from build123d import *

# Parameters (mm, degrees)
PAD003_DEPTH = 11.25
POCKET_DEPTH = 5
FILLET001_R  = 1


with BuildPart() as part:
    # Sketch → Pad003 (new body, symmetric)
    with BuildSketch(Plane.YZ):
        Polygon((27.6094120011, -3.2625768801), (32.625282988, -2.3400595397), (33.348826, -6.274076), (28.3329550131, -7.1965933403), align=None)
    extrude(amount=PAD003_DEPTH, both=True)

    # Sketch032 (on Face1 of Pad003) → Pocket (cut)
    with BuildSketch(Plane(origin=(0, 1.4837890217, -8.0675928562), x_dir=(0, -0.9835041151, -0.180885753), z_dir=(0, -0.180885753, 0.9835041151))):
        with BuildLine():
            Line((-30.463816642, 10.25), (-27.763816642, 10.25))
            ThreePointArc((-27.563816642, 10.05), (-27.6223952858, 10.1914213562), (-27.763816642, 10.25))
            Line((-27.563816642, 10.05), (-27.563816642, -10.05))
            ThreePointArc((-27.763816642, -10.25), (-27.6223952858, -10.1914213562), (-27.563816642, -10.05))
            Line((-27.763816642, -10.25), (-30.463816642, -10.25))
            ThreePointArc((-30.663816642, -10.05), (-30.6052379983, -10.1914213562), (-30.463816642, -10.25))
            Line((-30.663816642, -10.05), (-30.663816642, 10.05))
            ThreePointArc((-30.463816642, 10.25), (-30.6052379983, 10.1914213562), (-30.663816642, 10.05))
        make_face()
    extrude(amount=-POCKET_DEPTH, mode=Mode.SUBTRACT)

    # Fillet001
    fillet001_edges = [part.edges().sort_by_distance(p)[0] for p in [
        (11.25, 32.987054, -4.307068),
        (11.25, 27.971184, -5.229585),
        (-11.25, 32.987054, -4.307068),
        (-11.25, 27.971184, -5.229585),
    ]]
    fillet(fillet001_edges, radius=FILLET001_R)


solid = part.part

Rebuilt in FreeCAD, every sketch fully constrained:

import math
import FreeCAD as App
import Part
import Sketcher


def edges_at(feature, points):
    """Names of the edges that pass closest to the given points."""
    edges = feature.Shape.Edges
    near = lambda p: min(range(len(edges)), key=lambda i: edges[i].distToShape(Part.Vertex(*p))[0])
    return sorted({f"Edge{near(p) + 1}" for p in points})


def add_polygon(sketch, points):
    """Adds a closed chain of lines whose ends are joined by coincident constraints."""
    first, n = sketch.GeometryCount, len(points)
    for a, b in zip(points, points[1:] + points[:1]):
        sketch.addGeometry(Part.LineSegment(App.Vector(*a, 0), App.Vector(*b, 0)), False)
    for i in range(n):
        sketch.addConstraint(Sketcher.Constraint("Coincident", first + i, 2, first + (i + 1) % n, 1))

doc = App.newDocument("Part")
body = doc.addObject("PartDesign::Body", "Body")

sketch1 = body.newObject("Sketcher::SketchObject", "Sketch")
sketch1.AttachmentSupport = (doc.getObject("YZ_Plane"), [""])
sketch1.MapMode = "FlatFace"
add_polygon(sketch1, [(32.6, -2.3), (27.6, -3.3), (28.3, -7.2), (33.3, -6.3)])
sketch1.addConstraint(Sketcher.Constraint("Perpendicular", 0, 1))
sketch1.addConstraint(Sketcher.Constraint("Perpendicular", 1, 2))
sketch1.addConstraint(Sketcher.Constraint("Perpendicular", 2, 3))
sketch1.addConstraint(Sketcher.Constraint("Distance", 1, 4.0))
sketch1.addConstraint(Sketcher.Constraint("Distance", 0, 5.1))
sketch1.addConstraint(Sketcher.Constraint("DistanceY", 2, 2, 0, 2, 3.011499))
sketch1.addConstraint(Sketcher.Constraint("DistanceY", 3, 2, -1, 1, 2.34006))
sketch1.addConstraint(Sketcher.Constraint("DistanceX", -1, 1, 0, 2, 27.609412))
pad1 = body.newObject("PartDesign::Pad", "Pad")
pad1.Profile = sketch1
pad1.Length = 22.5
pad1.Midplane = True

sketch2 = body.newObject("Sketcher::SketchObject", "Sketch001")
sketch2.Placement = App.Placement(App.Vector(0, 1.483789, -8.067593), App.Rotation(App.Vector(0, -0.983504115, -0.180885753), App.Vector(1, 0, 0), App.Vector(0, -0.180885753, 0.983504115), "ZXY"))
sketch2.addGeometry(Part.LineSegment(App.Vector(-27.76, 10.25, 0), App.Vector(-30.46, 10.25, 0)), False)
sketch2.addGeometry(Part.ArcOfCircle(Part.Circle(App.Vector(-30.46, 10.05, 0), App.Vector(0, 0, 1), 0.2), math.radians(90), math.radians(180)), False)
sketch2.addGeometry(Part.LineSegment(App.Vector(-30.66, 10.05, 0), App.Vector(-30.66, -10.05, 0)), False)
sketch2.addGeometry(Part.ArcOfCircle(Part.Circle(App.Vector(-30.46, -10.05, 0), App.Vector(0, 0, 1), 0.2), math.radians(180), math.radians(270)), False)
sketch2.addGeometry(Part.LineSegment(App.Vector(-30.46, -10.25, 0), App.Vector(-27.76, -10.25, 0)), False)
sketch2.addGeometry(Part.ArcOfCircle(Part.Circle(App.Vector(-27.76, -10.05, 0), App.Vector(0, 0, 1), 0.2), math.radians(-90), math.radians(0)), False)
sketch2.addGeometry(Part.LineSegment(App.Vector(-27.56, -10.05, 0), App.Vector(-27.56, 10.05, 0)), False)
sketch2.addGeometry(Part.ArcOfCircle(Part.Circle(App.Vector(-27.76, 10.05, 0), App.Vector(0, 0, 1), 0.2), math.radians(0), math.radians(90)), False)
sketch2.addConstraint(Sketcher.Constraint("Tangent", 0, 2, 1, 1))
sketch2.addConstraint(Sketcher.Constraint("Tangent", 1, 2, 2, 1))
sketch2.addConstraint(Sketcher.Constraint("Tangent", 2, 2, 3, 1))
sketch2.addConstraint(Sketcher.Constraint("Tangent", 3, 2, 4, 1))
sketch2.addConstraint(Sketcher.Constraint("Tangent", 4, 2, 5, 1))
sketch2.addConstraint(Sketcher.Constraint("Tangent", 5, 2, 6, 1))
sketch2.addConstraint(Sketcher.Constraint("Tangent", 6, 2, 7, 1))
sketch2.addConstraint(Sketcher.Constraint("Tangent", 7, 2, 0, 1))
sketch2.addConstraint(Sketcher.Constraint("Horizontal", 0))
sketch2.addConstraint(Sketcher.Constraint("Vertical", 2))
sketch2.addConstraint(Sketcher.Constraint("Horizontal", 4))
sketch2.addConstraint(Sketcher.Constraint("Vertical", 6))
sketch2.addConstraint(Sketcher.Constraint("Equal", 1, 3))
sketch2.addConstraint(Sketcher.Constraint("Equal", 3, 5))
sketch2.addConstraint(Sketcher.Constraint("Equal", 5, 7))
sketch2.addConstraint(Sketcher.Constraint("Radius", 1, 0.2))
sketch2.addConstraint(Sketcher.Constraint("DistanceX", 0, 2, 0, 1, 2.7))
sketch2.addConstraint(Sketcher.Constraint("DistanceY", 2, 2, 2, 1, 20.1))
sketch2.addConstraint(Sketcher.Constraint("DistanceY", -1, 1, 1, 3, 10.05))
sketch2.addConstraint(Sketcher.Constraint("DistanceX", 1, 3, -1, 1, 30.463817))
pocket1 = body.newObject("PartDesign::Pocket", "Pocket")
pocket1.Profile = sketch2
pocket1.Length = 5
doc.recompute()

fillet = body.newObject("PartDesign::Fillet", "Fillet")
fillet.Base = (pocket1, edges_at(pocket1, [
    (11.25, 32.987, -4.307),
    (11.25, 27.971, -5.23),
    (-11.25, 32.987, -4.307),
    (-11.25, 27.971, -5.23),
]))
fillet.Radius = 1

doc.recompute()
